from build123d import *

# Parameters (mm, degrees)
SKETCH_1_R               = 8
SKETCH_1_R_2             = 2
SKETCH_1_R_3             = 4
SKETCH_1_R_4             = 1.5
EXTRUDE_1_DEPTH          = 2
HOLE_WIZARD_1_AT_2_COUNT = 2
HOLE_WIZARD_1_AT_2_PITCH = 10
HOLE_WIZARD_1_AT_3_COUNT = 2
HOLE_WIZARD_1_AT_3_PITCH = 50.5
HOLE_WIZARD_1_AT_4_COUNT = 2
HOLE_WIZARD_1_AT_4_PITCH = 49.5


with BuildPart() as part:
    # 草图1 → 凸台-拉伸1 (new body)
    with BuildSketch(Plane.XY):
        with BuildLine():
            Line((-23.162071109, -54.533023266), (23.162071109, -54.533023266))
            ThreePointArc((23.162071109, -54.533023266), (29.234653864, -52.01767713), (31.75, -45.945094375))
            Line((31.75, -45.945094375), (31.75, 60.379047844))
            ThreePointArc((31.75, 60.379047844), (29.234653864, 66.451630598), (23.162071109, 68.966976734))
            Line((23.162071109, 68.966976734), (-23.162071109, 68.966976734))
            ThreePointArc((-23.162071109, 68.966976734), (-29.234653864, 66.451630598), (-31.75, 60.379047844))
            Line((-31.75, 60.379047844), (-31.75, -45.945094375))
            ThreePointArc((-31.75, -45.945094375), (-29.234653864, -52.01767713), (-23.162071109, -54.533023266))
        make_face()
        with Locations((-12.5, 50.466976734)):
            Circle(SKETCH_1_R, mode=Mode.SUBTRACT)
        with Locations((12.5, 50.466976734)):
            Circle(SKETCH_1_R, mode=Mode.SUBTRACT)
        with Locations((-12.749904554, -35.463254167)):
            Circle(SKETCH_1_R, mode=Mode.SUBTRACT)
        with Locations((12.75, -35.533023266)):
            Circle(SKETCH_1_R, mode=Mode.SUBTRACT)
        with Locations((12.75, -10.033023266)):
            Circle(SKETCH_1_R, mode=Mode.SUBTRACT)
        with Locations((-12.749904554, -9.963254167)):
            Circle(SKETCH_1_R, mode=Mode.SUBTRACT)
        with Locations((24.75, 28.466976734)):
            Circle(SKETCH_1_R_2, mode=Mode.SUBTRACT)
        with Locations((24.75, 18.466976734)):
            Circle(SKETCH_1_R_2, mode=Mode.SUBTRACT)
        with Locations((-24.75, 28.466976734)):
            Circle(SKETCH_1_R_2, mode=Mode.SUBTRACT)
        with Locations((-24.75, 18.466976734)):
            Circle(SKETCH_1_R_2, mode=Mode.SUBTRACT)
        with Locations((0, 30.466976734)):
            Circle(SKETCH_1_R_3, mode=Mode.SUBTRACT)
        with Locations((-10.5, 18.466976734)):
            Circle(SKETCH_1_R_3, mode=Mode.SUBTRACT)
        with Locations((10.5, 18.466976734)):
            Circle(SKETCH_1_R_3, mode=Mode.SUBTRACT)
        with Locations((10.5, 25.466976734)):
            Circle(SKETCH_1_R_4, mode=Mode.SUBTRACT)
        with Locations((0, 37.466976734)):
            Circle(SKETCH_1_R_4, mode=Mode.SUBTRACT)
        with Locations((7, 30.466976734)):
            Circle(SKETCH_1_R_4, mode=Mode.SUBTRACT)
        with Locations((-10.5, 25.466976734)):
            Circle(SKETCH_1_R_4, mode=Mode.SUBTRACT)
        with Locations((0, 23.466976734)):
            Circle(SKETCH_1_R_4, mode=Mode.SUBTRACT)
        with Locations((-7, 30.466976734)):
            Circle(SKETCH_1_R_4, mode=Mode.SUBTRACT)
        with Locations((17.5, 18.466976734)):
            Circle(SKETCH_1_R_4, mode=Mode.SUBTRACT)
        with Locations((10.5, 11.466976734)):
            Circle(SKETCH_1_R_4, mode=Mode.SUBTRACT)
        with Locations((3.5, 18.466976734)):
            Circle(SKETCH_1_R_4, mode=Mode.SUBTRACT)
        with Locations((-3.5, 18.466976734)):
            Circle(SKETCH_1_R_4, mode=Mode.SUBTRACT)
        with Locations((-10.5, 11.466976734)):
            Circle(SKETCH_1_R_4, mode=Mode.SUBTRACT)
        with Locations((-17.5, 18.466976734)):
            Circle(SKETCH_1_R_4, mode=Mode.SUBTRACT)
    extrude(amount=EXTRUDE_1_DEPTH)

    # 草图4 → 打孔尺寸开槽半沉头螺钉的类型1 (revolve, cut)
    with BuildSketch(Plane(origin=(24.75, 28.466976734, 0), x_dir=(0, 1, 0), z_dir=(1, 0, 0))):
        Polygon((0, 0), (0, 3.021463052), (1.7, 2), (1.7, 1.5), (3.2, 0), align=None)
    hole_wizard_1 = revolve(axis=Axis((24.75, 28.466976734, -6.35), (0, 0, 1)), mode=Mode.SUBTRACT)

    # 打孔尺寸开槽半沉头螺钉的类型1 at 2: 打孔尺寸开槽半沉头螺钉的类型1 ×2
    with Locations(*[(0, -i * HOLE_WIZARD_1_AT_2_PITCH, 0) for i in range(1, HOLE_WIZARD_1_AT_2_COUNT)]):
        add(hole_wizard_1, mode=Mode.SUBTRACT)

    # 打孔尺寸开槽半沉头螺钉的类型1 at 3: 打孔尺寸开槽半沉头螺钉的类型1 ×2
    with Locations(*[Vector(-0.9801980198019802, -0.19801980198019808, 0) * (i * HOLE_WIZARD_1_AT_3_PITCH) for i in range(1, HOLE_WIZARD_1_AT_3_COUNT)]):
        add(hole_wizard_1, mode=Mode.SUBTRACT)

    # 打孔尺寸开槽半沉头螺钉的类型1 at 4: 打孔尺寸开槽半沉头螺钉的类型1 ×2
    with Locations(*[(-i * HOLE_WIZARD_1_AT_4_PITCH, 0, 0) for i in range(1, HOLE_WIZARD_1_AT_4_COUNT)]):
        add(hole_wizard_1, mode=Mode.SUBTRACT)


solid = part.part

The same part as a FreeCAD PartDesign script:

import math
import FreeCAD as App
import Part
import Sketcher

V = App.Vector
Q = App.Units.Quantity

doc = App.newDocument("Part")
body = doc.addObject("PartDesign::Body", "Body")

# Sketch on XY plane
sketch1 = body.newObject("Sketcher::SketchObject", "Sketch")
sketch1.AttachmentSupport = (doc.getObject("XY_Plane"), [""])
sketch1.MapMode = "FlatFace"
sketch1.addGeometry(Part.LineSegment(V(-23.2, -54.5, 0), V(23.2, -54.5, 0)), False)
sketch1.addGeometry(Part.ArcOfCircle(Part.Circle(V(23.2, -45.9, 0), V(0, 0, 1), 8.6), math.radians(-90), math.radians(0)), False)
sketch1.addGeometry(Part.LineSegment(V(31.8, -45.9, 0), V(31.8, 60.4, 0)), False)
sketch1.addGeometry(Part.ArcOfCircle(Part.Circle(V(23.2, 60.4, 0), V(0, 0, 1), 8.6), math.radians(0), math.radians(90)), False)
sketch1.addGeometry(Part.LineSegment(V(23.2, 69, 0), V(-23.2, 69, 0)), False)
sketch1.addGeometry(Part.ArcOfCircle(Part.Circle(V(-23.2, 60.4, 0), V(0, 0, 1), 8.6), math.radians(90), math.radians(180)), False)
sketch1.addGeometry(Part.LineSegment(V(-31.8, 60.4, 0), V(-31.8, -45.9, 0)), False)
sketch1.addGeometry(Part.ArcOfCircle(Part.Circle(V(-23.2, -45.9, 0), V(0, 0, 1), 8.6), math.radians(-180), math.radians(-90)), False)
sketch1.addGeometry(Part.Circle(V(-12.7, -35.5, 0), V(0, 0, 1), 8), False)
sketch1.addGeometry(Part.Circle(V(-12.7, -10, 0), V(0, 0, 1), 8), False)
sketch1.addGeometry(Part.Circle(V(12.8, -35.5, 0), V(0, 0, 1), 8), False)
sketch1.addGeometry(Part.Circle(V(12.8, -10, 0), V(0, 0, 1), 8), False)
sketch1.addGeometry(Part.Circle(V(-24.8, 18.5, 0), V(0, 0, 1), 2), False)
sketch1.addGeometry(Part.Circle(V(-17.5, 18.5, 0), V(0, 0, 1), 1.5), False)
sketch1.addGeometry(Part.Circle(V(-24.8, 28.5, 0), V(0, 0, 1), 2), False)
sketch1.addGeometry(Part.Circle(V(-10.5, 11.5, 0), V(0, 0, 1), 1.5), False)
sketch1.addGeometry(Part.Circle(V(-10.5, 18.5, 0), V(0, 0, 1), 4), False)
sketch1.addGeometry(Part.Circle(V(-3.5, 18.5, 0), V(0, 0, 1), 1.5), False)
sketch1.addGeometry(Part.Circle(V(-10.5, 25.5, 0), V(0, 0, 1), 1.5), False)
sketch1.addGeometry(Part.Circle(V(-7, 30.5, 0), V(0, 0, 1), 1.5), False)
sketch1.addGeometry(Part.Circle(V(0, 23.5, 0), V(0, 0, 1), 1.5), False)
sketch1.addGeometry(Part.Circle(V(0, 30.5, 0), V(0, 0, 1), 4), False)
sketch1.addGeometry(Part.Circle(V(0, 37.5, 0), V(0, 0, 1), 1.5), False)
sketch1.addGeometry(Part.Circle(V(-12.5, 50.5, 0), V(0, 0, 1), 8), False)
sketch1.addGeometry(Part.Circle(V(3.5, 18.5, 0), V(0, 0, 1), 1.5), False)
sketch1.addGeometry(Part.Circle(V(10.5, 11.5, 0), V(0, 0, 1), 1.5), False)
sketch1.addGeometry(Part.Circle(V(10.5, 18.5, 0), V(0, 0, 1), 4), False)
sketch1.addGeometry(Part.Circle(V(10.5, 25.5, 0), V(0, 0, 1), 1.5), False)
sketch1.addGeometry(Part.Circle(V(7, 30.5, 0), V(0, 0, 1), 1.5), False)
sketch1.addGeometry(Part.Circle(V(17.5, 18.5, 0), V(0, 0, 1), 1.5), False)
sketch1.addGeometry(Part.Circle(V(24.8, 18.5, 0), V(0, 0, 1), 2), False)
sketch1.addGeometry(Part.Circle(V(24.8, 28.5, 0), V(0, 0, 1), 2), False)
sketch1.addGeometry(Part.Circle(V(12.5, 50.5, 0), V(0, 0, 1), 8), False)
sketch1.addConstraint(Sketcher.Constraint("Tangent", 0, 2, 1, 1))
sketch1.addConstraint(Sketcher.Constraint("Tangent", 1, 2, 2, 1))
sketch1.addConstraint(Sketcher.Constraint("Tangent", 2, 2, 3, 1))
sketch1.addConstraint(Sketcher.Constraint("Tangent", 3, 2, 4, 1))
sketch1.addConstraint(Sketcher.Constraint("Tangent", 4, 2, 5, 1))
sketch1.addConstraint(Sketcher.Constraint("Tangent", 5, 2, 6, 1))
sketch1.addConstraint(Sketcher.Constraint("Tangent", 6, 2, 7, 1))
sketch1.addConstraint(Sketcher.Constraint("Tangent", 7, 2, 0, 1))
sketch1.addConstraint(Sketcher.Constraint("Horizontal", 0))
sketch1.addConstraint(Sketcher.Constraint("Vertical", 2))
sketch1.addConstraint(Sketcher.Constraint("Horizontal", 4))
sketch1.addConstraint(Sketcher.Constraint("Vertical", 6))
sketch1.addConstraint(Sketcher.Constraint("Equal", 1, 3))
sketch1.addConstraint(Sketcher.Constraint("Equal", 3, 5))
sketch1.addConstraint(Sketcher.Constraint("Equal", 5, 7))
sketch1.addConstraint(Sketcher.Constraint("Equal", 8, 9))
sketch1.addConstraint(Sketcher.Constraint("Equal", 9, 10))
sketch1.addConstraint(Sketcher.Constraint("Equal", 10, 11))
sketch1.addConstraint(Sketcher.Constraint("Equal", 12, 14))
sketch1.addConstraint(Sketcher.Constraint("Equal", 13, 15))
sketch1.addConstraint(Sketcher.Constraint("Equal", 15, 17))
sketch1.addConstraint(Sketcher.Constraint("Equal", 17, 18))
sketch1.addConstraint(Sketcher.Constraint("Equal", 18, 19))
sketch1.addConstraint(Sketcher.Constraint("Equal", 19, 20))
sketch1.addConstraint(Sketcher.Constraint("Equal", 16, 21))
sketch1.addConstraint(Sketcher.Constraint("Equal", 20, 22))
sketch1.addConstraint(Sketcher.Constraint("Equal", 11, 23))
sketch1.addConstraint(Sketcher.Constraint("Equal", 22, 24))
sketch1.addConstraint(Sketcher.Constraint("Equal", 24, 25))
sketch1.addConstraint(Sketcher.Constraint("Equal", 21, 26))
sketch1.addConstraint(Sketcher.Constraint("Equal", 25, 27))
sketch1.addConstraint(Sketcher.Constraint("Equal", 27, 28))
sketch1.addConstraint(Sketcher.Constraint("Equal", 28, 29))
sketch1.addConstraint(Sketcher.Constraint("Equal", 14, 30))
sketch1.addConstraint(Sketcher.Constraint("Equal", 30, 31))
sketch1.addConstraint(Sketcher.Constraint("Equal", 23, 32))
sketch1.addConstraint(Sketcher.Constraint("Symmetric", 17, 3, 24, 3, -2))
sketch1.addConstraint(Sketcher.Constraint("Symmetric", 15, 3, 25, 3, -2))
sketch1.addConstraint(Sketcher.Constraint("Symmetric", 16, 3, 26, 3, -2))
sketch1.addConstraint(Sketcher.Constraint("Symmetric", 18, 3, 27, 3, -2))
sketch1.addConstraint(Sketcher.Constraint("Symmetric", 19, 3, 28, 3, -2))
sketch1.addConstraint(Sketcher.Constraint("Symmetric", 13, 3, 29, 3, -2))
sketch1.addConstraint(Sketcher.Constraint("Symmetric", 12, 3, 30, 3, -2))
sketch1.addConstraint(Sketcher.Constraint("Symmetric", 14, 3, 31, 3, -2))
sketch1.addConstraint(Sketcher.Constraint("Symmetric", 23, 3, 32, 3, -2))
sketch1.addConstraint(Sketcher.Constraint("PointOnObject", 20, 3, -2))
sketch1.addConstraint(Sketcher.Constraint("PointOnObject", 21, 3, -2))
sketch1.addConstraint(Sketcher.Constraint("PointOnObject", 22, 3, -2))
sketch1.addConstraint(Sketcher.Constraint("Horizontal", 12, 3, 13, 3))
sketch1.addConstraint(Sketcher.Constraint("Horizontal", 13, 3, 16, 3))
sketch1.addConstraint(Sketcher.Constraint("Horizontal", 16, 3, 17, 3))
sketch1.addConstraint(Sketcher.Constraint("Horizontal", 19, 3, 21, 3))
sketch1.addConstraint(Sketcher.Constraint("Vertical", 8, 3, 9, 3))
sketch1.addConstraint(Sketcher.Constraint("Vertical", 10, 3, 11, 3))
sketch1.addConstraint(Sketcher.Constraint("Vertical", 12, 3, 14, 3))
sketch1.addConstraint(Sketcher.Constraint("Vertical", 15, 3, 16, 3))
sketch1.addConstraint(Sketcher.Constraint("Vertical", 16, 3, 18, 3))
sketch1.addConstraint(Sketcher.Constraint("Diameter", 8, Q("16 mm")))
sketch1.addConstraint(Sketcher.Constraint("Diameter", 12, Q("4 mm")))
sketch1.addConstraint(Sketcher.Constraint("Diameter", 13, Q("3 mm")))
sketch1.addConstraint(Sketcher.Constraint("Diameter", 16, Q("8 mm")))
sketch1.addConstraint(Sketcher.Constraint("DistanceX", 19, 3, -1, 1, Q("7 mm")))
sketch1.addConstraint(Sketcher.Constraint("DistanceY", 12, 3, 14, 3, Q("10 mm")))
sketch1.addConstraint(Sketcher.Constraint("DistanceX", 13, 3, 15, 3, Q("7 mm")))
sketch1.addConstraint(Sketcher.Constraint("DistanceY", 15, 3, 13, 3, Q("7 mm")))
sketch1.addConstraint(Sketcher.Constraint("DistanceX", 16, 3, 17, 3, Q("7 mm")))
sketch1.addConstraint(Sketcher.Constraint("DistanceY", 16, 3, 18, 3, Q("7 mm")))
sketch1.addConstraint(Sketcher.Constraint("DistanceY", 18, 3, 19, 3, Q("5 mm")))
sketch1.addConstraint(Sketcher.Constraint("DistanceY", 17, 3, 20, 3, Q("5 mm")))
sketch1.addConstraint(Sketcher.Constraint("DistanceY", 21, 3, 22, 3, Q("7 mm")))
sketch1.addConstraint(Sketcher.Constraint("DistanceY", 22, 3, 23, 3, Q("13 mm")))
sketch1.addConstraint(Sketcher.Constraint("DistanceX", 23, 3, 18, 3, Q("2 mm")))
sketch1.addConstraint(Sketcher.Constraint("DistanceX", 17, 3, 24, 3, Q("7 mm")))
sketch1.addConstraint(Sketcher.Constraint("DistanceY", 0, 2, 10, 3, Q("19 mm")))
sketch1.addConstraint(Sketcher.Constraint("DistanceX", 10, 3, 1, 2, Q("19 mm")))
sketch1.addConstraint(Sketcher.Constraint("DistanceX", 31, 3, 2, 2, Q("7 mm")))
sketch1.addConstraint(Sketcher.Constraint("DistanceX", 5, 2, 14, 3, Q("7 mm")))
sketch1.addConstraint(Sketcher.Constraint("DistanceY", 8, 3, 9, 3, Q("25.5 mm")))
sketch1.addConstraint(Sketcher.Constraint("DistanceY", 10, 3, 11, 3, Q("25.5 mm")))
sketch1.addConstraint(Sketcher.Constraint("DistanceX", 12, 3, 11, 3, Q("37.5 mm")))
sketch1.addConstraint(Sketcher.Constraint("DistanceY", 11, 3, 12, 3, Q("28.5 mm")))
sketch1.addConstraint(Sketcher.Constraint("DistanceY", 32, 3, 3, 2, Q("18.5 mm")))
sketch1.addConstraint(Sketcher.Constraint("Radius", 1, Q("8.587929 mm")))
sketch1.addConstraint(Sketcher.Constraint("DistanceY", 7, 3, 8, 3, Q("10.48184 mm")))
sketch1.addConstraint(Sketcher.Constraint("DistanceY", 1, 3, -1, 1, Q("45.945094 mm")))
sketch1.addConstraint(Sketcher.Constraint("DistanceX", 8, 3, -1, 1, Q("12.749905 mm")))
pad1 = body.newObject("PartDesign::Pad", "Pad")
pad1.Profile = sketch1
pad1.Length = 2

# Sketch on YZ plane
sketch2 = body.newObject("Sketcher::SketchObject", "Sketch001")
sketch2.AttachmentSupport = (doc.getObject("YZ_Plane"), [""])
sketch2.MapMode = "FlatFace"
sketch2.AttachmentOffset = App.Placement(V(0, 0, 24.75), App.Rotation())
sketch2.addGeometry(Part.LineSegment(V(28.5, 3, 0), V(28.5, 0, 0)), False)
sketch2.addGeometry(Part.LineSegment(V(28.5, 0, 0), V(31.7, 0, 0)), False)
sketch2.addGeometry(Part.LineSegment(V(31.7, 0, 0), V(30.2, 1.5, 0)), False)
sketch2.addGeometry(Part.LineSegment(V(30.2, 1.5, 0), V(30.2, 2, 0)), False)
sketch2.addGeometry(Part.LineSegment(V(30.2, 2, 0), V(28.5, 3, 0)), False)
sketch2.addGeometry(Part.LineSegment(V(28.5, 0, 0), V(28.5, 3, 0)), True)  # axis
sketch2.addConstraint(Sketcher.Constraint("Coincident", 0, 2, 1, 1))
sketch2.addConstraint(Sketcher.Constraint("Coincident", 1, 2, 2, 1))
sketch2.addConstraint(Sketcher.Constraint("Coincident", 2, 2, 3, 1))
sketch2.addConstraint(Sketcher.Constraint("Coincident", 3, 2, 4, 1))
sketch2.addConstraint(Sketcher.Constraint("Coincident", 4, 2, 0, 1))
sketch2.addConstraint(Sketcher.Constraint("Vertical", 0))
sketch2.addConstraint(Sketcher.Constraint("Horizontal", 1))
sketch2.addConstraint(Sketcher.Constraint("Vertical", 3))
sketch2.addConstraint(Sketcher.Constraint("Vertical", 5))
sketch2.addConstraint(Sketcher.Constraint("Coincident", 5, 1, 0, 2))
sketch2.addConstraint(Sketcher.Constraint("PointOnObject", 0, 2, -1))
sketch2.addConstraint(Sketcher.Constraint("Equal", 0, 5))
sketch2.addConstraint(Sketcher.Constraint("Angle", 2, Q("135 deg")))
sketch2.addConstraint(Sketcher.Constraint("Angle", 4, Q("149 deg")))
sketch2.addConstraint(Sketcher.Constraint("DistanceX", 1, 1, 1, 2, Q("3.2 mm")))
sketch2.addConstraint(Sketcher.Constraint("DistanceY", 3, 1, 3, 2, Q("0.5 mm")))
sketch2.addConstraint(Sketcher.Constraint("DistanceY", -1, 1, 3, 2, Q("2 mm")))
sketch2.addConstraint(Sketcher.Constraint("DistanceX", -1, 1, 0, 2, Q("28.466977 mm")))
groove = body.newObject("PartDesign::Groove", "Groove")
groove.Profile = sketch2
groove.ReferenceAxis = (sketch2, ["Axis0"])
groove.Angle = 360
doc.recompute()

linearpattern = body.newObject("PartDesign::LinearPattern", "LinearPattern")
linearpattern.Originals = [groove]
linearpattern.Direction = (doc.getObject("Y_Axis"), [""])
linearpattern.Mode = "offset"
linearpattern.Offset = 10
linearpattern.Occurrences = 2
linearpattern.Reversed = True
body.Tip = linearpattern
doc.recompute()

datumline = body.newObject("PartDesign::Line", "DatumLine")
datumline.Placement = App.Placement(V(0, 0, 0), App.Rotation(V(0, 0, 1), V(-0.98019802, -0.198019802, 0)))
linearpattern2 = body.newObject("PartDesign::LinearPattern", "LinearPattern001")
linearpattern2.Originals = [groove]
linearpattern2.Direction = (datumline, [""])
linearpattern2.Mode = "offset"
linearpattern2.Offset = 50.5
linearpattern2.Occurrences = 2
body.Tip = linearpattern2
doc.recompute()

linearpattern3 = body.newObject("PartDesign::LinearPattern", "LinearPattern002")
linearpattern3.Originals = [groove]
linearpattern3.Direction = (doc.getObject("X_Axis"), [""])
linearpattern3.Mode = "offset"
linearpattern3.Offset = 49.5
linearpattern3.Occurrences = 2
linearpattern3.Reversed = True
body.Tip = linearpattern3

doc.recompute()
